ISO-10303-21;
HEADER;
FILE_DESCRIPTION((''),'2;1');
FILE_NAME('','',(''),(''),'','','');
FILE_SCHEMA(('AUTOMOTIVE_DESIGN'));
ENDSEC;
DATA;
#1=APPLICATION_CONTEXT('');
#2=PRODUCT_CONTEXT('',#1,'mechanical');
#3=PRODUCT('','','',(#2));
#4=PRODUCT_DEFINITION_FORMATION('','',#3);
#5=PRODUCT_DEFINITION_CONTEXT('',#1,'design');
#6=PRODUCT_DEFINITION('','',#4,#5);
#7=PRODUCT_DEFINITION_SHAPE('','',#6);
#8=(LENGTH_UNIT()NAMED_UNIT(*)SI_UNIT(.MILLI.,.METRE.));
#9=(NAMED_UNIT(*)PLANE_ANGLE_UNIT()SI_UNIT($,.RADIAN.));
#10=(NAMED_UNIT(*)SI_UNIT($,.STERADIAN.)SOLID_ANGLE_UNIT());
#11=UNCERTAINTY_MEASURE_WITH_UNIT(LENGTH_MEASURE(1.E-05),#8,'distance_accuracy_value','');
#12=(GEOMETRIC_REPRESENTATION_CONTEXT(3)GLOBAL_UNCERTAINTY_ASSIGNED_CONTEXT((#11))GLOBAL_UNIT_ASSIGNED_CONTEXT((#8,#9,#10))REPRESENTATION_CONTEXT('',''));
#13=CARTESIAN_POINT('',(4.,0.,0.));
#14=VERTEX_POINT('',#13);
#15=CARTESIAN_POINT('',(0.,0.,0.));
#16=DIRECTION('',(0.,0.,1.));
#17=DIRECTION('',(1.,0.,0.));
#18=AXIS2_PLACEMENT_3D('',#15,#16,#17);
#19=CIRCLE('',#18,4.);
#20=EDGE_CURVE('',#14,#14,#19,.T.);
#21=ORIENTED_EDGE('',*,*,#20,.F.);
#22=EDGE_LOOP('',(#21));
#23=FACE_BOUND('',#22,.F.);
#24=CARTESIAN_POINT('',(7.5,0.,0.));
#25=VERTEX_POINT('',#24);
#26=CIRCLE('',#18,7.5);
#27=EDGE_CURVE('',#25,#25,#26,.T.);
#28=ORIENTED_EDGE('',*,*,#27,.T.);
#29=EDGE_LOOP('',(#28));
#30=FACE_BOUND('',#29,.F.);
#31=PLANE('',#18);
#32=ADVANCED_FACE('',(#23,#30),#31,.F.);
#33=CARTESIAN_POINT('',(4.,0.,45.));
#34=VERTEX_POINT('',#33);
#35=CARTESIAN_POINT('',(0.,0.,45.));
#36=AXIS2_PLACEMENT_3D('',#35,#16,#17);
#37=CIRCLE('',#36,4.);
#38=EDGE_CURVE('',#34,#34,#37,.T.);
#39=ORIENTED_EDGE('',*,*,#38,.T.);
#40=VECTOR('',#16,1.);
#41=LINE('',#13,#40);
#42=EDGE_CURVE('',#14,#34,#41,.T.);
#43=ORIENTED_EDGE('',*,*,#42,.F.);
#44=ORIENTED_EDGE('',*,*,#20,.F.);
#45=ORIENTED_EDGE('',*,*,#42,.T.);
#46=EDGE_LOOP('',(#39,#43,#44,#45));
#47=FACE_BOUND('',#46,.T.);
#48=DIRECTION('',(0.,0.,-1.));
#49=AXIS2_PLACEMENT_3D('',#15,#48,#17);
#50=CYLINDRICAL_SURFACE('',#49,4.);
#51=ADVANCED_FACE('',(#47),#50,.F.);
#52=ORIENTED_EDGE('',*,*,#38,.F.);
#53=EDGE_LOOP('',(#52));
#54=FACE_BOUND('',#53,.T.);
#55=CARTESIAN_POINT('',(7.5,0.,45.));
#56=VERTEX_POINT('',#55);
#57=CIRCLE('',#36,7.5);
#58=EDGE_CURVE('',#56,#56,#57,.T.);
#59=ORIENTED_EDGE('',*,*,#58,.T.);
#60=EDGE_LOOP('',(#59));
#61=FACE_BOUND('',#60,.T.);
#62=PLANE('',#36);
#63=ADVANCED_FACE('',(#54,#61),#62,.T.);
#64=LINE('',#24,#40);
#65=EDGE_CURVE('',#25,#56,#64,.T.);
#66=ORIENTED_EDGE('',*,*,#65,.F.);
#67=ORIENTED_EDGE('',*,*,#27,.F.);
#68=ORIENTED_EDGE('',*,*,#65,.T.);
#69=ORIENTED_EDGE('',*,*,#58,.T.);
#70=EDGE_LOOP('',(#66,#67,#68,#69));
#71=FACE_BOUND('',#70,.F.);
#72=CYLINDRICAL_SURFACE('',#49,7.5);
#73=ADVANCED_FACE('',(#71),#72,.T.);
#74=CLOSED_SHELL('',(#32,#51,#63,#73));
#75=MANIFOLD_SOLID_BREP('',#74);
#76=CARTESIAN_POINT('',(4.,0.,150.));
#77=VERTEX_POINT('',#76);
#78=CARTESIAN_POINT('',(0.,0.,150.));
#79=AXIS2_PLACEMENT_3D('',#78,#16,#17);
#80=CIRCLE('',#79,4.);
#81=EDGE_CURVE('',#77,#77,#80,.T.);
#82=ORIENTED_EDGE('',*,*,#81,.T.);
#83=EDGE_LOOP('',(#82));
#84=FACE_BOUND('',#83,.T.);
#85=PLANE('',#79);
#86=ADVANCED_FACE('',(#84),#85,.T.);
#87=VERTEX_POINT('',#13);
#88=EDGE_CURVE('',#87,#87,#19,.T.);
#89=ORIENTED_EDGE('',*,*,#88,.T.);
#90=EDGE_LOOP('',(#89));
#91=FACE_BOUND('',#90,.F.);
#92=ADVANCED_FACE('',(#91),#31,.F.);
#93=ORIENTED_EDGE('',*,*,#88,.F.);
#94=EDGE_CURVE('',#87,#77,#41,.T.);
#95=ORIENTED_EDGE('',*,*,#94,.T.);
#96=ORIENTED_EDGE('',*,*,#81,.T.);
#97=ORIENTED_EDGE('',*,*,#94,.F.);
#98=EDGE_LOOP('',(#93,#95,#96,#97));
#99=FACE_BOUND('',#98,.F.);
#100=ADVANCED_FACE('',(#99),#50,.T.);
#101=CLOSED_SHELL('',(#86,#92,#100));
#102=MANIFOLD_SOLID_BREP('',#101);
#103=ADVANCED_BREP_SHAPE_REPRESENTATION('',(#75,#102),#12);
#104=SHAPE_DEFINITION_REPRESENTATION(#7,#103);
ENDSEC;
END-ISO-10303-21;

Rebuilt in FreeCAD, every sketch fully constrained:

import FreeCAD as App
import Part
import Sketcher
Q = App.Units.Quantity

doc = App.newDocument("Part")
body = doc.addObject("PartDesign::Body", "Body")

sketch1 = body.newObject("Sketcher::SketchObject", "Sketch")
sketch1.AttachmentSupport = (doc.getObject("XY_Plane"), [""])
sketch1.MapMode = "FlatFace"
sketch1.addGeometry(Part.Circle(App.Vector(0, 0, 0), App.Vector(0, 0, 1), 4), False)
sketch1.addConstraint(Sketcher.Constraint("Coincident", 0, 3, -1, 1))
sketch1.addConstraint(Sketcher.Constraint("Diameter", 0, Q("8 mm")))
pad1 = body.newObject("PartDesign::Pad", "Pad")
pad1.Profile = sketch1
pad1.Length = 150
body2 = doc.addObject("PartDesign::Body", "Body001")

sketch2 = body2.newObject("Sketcher::SketchObject", "Sketch001")
sketch2.AttachmentSupport = (doc.getObject("XY_Plane001"), [""])
sketch2.MapMode = "FlatFace"
sketch2.addGeometry(Part.Circle(App.Vector(0, 0, 0), App.Vector(0, 0, 1), 7.5), False)
sketch2.addGeometry(Part.Circle(App.Vector(0, 0, 0), App.Vector(0, 0, 1), 4), False)
sketch2.addConstraint(Sketcher.Constraint("Coincident", 0, 3, -1, 1))
sketch2.addConstraint(Sketcher.Constraint("Coincident", 1, 3, -1, 1))
sketch2.addConstraint(Sketcher.Constraint("Diameter", 0, Q("15 mm")))
sketch2.addConstraint(Sketcher.Constraint("Diameter", 1, Q("8 mm")))
pad2 = body2.newObject("PartDesign::Pad", "Pad001")
pad2.Profile = sketch2
pad2.Length = 45

doc.recompute()
